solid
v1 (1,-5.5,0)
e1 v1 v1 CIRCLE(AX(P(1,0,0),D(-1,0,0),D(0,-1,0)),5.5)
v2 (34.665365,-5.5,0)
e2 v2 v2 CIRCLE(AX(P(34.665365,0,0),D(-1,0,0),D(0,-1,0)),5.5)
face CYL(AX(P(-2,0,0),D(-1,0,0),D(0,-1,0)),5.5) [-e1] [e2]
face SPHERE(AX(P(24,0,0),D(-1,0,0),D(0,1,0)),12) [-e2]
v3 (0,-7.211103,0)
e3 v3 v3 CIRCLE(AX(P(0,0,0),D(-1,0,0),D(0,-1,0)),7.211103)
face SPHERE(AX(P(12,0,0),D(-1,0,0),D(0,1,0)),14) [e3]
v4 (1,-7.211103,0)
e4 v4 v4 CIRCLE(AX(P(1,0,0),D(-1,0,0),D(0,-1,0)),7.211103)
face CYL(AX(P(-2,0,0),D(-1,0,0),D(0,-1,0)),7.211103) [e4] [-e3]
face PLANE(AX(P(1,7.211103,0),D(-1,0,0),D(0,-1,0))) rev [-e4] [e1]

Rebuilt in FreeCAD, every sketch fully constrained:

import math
import FreeCAD as App
import Part
import Sketcher
from FreeCAD import Vector

doc = App.newDocument("Part")
params = doc.addObject("Spreadsheet::Sheet", "Params")
for row, (alias, value) in enumerate([
    ("sketch1_radius", "14 mm"),
    ("sketch1_radius2", "12 mm"),
    ("sketch1_width", "1 mm"),
    ("sketch1_width2", "38 mm"),
    ("revolution_angle", "360 deg"),
], start=1):
    params.set(f"A{row}", alias)
    params.set(f"B{row}", "=" + value)
    params.setAlias(f"B{row}", alias)

body = doc.addObject("PartDesign::Body", "Body")

sketch1 = body.newObject("Sketcher::SketchObject", "Sketch")
sketch1.AttachmentSupport = (doc.getObject("XY_Plane"), [""])
sketch1.MapMode = "FlatFace"
sketch1.addGeometry([
    Part.LineSegment(Vector(1, 7.2, 0), Vector(0, 7.2, 0)),
    Part.ArcOfCircle(Part.Circle(Vector(12, 0, 0), Vector(0, 0, 1), 14), math.radians(149), math.radians(180)),
    Part.LineSegment(Vector(-2, 0, 0), Vector(36, 0, 0)),
    Part.ArcOfCircle(Part.Circle(Vector(24, 0, 0), Vector(0, 0, 1), 12), math.radians(0), math.radians(27)),
    Part.LineSegment(Vector(34.7, 5.5, 0), Vector(1, 5.5, 0)),
    Part.LineSegment(Vector(1, 5.5, 0), Vector(1, 7.2, 0)),
], False)
sketch1.addConstraint([
    Sketcher.Constraint("Coincident", 0, 2, 1, 1),
    Sketcher.Constraint("Coincident", 1, 2, 2, 1),
    Sketcher.Constraint("Coincident", 2, 2, 3, 1),
    Sketcher.Constraint("Coincident", 3, 2, 4, 1),
    Sketcher.Constraint("Coincident", 4, 2, 5, 1),
    Sketcher.Constraint("Coincident", 5, 2, 0, 1),
    Sketcher.Constraint("Horizontal", 0),
    Sketcher.Constraint("Horizontal", 2),
    Sketcher.Constraint("Horizontal", 4),
    Sketcher.Constraint("Vertical", 5),
    Sketcher.Constraint("PointOnObject", 1, 3, -1),
    Sketcher.Constraint("PointOnObject", 3, 3, -1),
    Sketcher.Constraint("PointOnObject", 0, 2, -2),
    Sketcher.Constraint("PointOnObject", 1, 2, -1),
    Sketcher.Constraint("Radius", 1, 14.0),
    Sketcher.Constraint("Radius", 3, 12.0),
    Sketcher.Constraint("DistanceX", 0, 2, 0, 1, 1.0),
    Sketcher.Constraint("DistanceX", 2, 1, 2, 2, 38.0),
    Sketcher.Constraint("DistanceX", -1, 1, 1, 3, 12.0),
    Sketcher.Constraint("DistanceY", -1, 1, 3, 2, 5.5),
])
sketch1.setExpression("Constraints[14]", "Params.sketch1_radius")
sketch1.setExpression("Constraints[15]", "Params.sketch1_radius2")
sketch1.setExpression("Constraints[16]", "Params.sketch1_width")
sketch1.setExpression("Constraints[17]", "Params.sketch1_width2")
revolution = body.newObject("PartDesign::Revolution", "Revolution")
revolution.Profile = sketch1
revolution.ReferenceAxis = (sketch1, ["H_Axis"])
revolution.setExpression("Angle", "Params.revolution_angle")

doc.recompute()
